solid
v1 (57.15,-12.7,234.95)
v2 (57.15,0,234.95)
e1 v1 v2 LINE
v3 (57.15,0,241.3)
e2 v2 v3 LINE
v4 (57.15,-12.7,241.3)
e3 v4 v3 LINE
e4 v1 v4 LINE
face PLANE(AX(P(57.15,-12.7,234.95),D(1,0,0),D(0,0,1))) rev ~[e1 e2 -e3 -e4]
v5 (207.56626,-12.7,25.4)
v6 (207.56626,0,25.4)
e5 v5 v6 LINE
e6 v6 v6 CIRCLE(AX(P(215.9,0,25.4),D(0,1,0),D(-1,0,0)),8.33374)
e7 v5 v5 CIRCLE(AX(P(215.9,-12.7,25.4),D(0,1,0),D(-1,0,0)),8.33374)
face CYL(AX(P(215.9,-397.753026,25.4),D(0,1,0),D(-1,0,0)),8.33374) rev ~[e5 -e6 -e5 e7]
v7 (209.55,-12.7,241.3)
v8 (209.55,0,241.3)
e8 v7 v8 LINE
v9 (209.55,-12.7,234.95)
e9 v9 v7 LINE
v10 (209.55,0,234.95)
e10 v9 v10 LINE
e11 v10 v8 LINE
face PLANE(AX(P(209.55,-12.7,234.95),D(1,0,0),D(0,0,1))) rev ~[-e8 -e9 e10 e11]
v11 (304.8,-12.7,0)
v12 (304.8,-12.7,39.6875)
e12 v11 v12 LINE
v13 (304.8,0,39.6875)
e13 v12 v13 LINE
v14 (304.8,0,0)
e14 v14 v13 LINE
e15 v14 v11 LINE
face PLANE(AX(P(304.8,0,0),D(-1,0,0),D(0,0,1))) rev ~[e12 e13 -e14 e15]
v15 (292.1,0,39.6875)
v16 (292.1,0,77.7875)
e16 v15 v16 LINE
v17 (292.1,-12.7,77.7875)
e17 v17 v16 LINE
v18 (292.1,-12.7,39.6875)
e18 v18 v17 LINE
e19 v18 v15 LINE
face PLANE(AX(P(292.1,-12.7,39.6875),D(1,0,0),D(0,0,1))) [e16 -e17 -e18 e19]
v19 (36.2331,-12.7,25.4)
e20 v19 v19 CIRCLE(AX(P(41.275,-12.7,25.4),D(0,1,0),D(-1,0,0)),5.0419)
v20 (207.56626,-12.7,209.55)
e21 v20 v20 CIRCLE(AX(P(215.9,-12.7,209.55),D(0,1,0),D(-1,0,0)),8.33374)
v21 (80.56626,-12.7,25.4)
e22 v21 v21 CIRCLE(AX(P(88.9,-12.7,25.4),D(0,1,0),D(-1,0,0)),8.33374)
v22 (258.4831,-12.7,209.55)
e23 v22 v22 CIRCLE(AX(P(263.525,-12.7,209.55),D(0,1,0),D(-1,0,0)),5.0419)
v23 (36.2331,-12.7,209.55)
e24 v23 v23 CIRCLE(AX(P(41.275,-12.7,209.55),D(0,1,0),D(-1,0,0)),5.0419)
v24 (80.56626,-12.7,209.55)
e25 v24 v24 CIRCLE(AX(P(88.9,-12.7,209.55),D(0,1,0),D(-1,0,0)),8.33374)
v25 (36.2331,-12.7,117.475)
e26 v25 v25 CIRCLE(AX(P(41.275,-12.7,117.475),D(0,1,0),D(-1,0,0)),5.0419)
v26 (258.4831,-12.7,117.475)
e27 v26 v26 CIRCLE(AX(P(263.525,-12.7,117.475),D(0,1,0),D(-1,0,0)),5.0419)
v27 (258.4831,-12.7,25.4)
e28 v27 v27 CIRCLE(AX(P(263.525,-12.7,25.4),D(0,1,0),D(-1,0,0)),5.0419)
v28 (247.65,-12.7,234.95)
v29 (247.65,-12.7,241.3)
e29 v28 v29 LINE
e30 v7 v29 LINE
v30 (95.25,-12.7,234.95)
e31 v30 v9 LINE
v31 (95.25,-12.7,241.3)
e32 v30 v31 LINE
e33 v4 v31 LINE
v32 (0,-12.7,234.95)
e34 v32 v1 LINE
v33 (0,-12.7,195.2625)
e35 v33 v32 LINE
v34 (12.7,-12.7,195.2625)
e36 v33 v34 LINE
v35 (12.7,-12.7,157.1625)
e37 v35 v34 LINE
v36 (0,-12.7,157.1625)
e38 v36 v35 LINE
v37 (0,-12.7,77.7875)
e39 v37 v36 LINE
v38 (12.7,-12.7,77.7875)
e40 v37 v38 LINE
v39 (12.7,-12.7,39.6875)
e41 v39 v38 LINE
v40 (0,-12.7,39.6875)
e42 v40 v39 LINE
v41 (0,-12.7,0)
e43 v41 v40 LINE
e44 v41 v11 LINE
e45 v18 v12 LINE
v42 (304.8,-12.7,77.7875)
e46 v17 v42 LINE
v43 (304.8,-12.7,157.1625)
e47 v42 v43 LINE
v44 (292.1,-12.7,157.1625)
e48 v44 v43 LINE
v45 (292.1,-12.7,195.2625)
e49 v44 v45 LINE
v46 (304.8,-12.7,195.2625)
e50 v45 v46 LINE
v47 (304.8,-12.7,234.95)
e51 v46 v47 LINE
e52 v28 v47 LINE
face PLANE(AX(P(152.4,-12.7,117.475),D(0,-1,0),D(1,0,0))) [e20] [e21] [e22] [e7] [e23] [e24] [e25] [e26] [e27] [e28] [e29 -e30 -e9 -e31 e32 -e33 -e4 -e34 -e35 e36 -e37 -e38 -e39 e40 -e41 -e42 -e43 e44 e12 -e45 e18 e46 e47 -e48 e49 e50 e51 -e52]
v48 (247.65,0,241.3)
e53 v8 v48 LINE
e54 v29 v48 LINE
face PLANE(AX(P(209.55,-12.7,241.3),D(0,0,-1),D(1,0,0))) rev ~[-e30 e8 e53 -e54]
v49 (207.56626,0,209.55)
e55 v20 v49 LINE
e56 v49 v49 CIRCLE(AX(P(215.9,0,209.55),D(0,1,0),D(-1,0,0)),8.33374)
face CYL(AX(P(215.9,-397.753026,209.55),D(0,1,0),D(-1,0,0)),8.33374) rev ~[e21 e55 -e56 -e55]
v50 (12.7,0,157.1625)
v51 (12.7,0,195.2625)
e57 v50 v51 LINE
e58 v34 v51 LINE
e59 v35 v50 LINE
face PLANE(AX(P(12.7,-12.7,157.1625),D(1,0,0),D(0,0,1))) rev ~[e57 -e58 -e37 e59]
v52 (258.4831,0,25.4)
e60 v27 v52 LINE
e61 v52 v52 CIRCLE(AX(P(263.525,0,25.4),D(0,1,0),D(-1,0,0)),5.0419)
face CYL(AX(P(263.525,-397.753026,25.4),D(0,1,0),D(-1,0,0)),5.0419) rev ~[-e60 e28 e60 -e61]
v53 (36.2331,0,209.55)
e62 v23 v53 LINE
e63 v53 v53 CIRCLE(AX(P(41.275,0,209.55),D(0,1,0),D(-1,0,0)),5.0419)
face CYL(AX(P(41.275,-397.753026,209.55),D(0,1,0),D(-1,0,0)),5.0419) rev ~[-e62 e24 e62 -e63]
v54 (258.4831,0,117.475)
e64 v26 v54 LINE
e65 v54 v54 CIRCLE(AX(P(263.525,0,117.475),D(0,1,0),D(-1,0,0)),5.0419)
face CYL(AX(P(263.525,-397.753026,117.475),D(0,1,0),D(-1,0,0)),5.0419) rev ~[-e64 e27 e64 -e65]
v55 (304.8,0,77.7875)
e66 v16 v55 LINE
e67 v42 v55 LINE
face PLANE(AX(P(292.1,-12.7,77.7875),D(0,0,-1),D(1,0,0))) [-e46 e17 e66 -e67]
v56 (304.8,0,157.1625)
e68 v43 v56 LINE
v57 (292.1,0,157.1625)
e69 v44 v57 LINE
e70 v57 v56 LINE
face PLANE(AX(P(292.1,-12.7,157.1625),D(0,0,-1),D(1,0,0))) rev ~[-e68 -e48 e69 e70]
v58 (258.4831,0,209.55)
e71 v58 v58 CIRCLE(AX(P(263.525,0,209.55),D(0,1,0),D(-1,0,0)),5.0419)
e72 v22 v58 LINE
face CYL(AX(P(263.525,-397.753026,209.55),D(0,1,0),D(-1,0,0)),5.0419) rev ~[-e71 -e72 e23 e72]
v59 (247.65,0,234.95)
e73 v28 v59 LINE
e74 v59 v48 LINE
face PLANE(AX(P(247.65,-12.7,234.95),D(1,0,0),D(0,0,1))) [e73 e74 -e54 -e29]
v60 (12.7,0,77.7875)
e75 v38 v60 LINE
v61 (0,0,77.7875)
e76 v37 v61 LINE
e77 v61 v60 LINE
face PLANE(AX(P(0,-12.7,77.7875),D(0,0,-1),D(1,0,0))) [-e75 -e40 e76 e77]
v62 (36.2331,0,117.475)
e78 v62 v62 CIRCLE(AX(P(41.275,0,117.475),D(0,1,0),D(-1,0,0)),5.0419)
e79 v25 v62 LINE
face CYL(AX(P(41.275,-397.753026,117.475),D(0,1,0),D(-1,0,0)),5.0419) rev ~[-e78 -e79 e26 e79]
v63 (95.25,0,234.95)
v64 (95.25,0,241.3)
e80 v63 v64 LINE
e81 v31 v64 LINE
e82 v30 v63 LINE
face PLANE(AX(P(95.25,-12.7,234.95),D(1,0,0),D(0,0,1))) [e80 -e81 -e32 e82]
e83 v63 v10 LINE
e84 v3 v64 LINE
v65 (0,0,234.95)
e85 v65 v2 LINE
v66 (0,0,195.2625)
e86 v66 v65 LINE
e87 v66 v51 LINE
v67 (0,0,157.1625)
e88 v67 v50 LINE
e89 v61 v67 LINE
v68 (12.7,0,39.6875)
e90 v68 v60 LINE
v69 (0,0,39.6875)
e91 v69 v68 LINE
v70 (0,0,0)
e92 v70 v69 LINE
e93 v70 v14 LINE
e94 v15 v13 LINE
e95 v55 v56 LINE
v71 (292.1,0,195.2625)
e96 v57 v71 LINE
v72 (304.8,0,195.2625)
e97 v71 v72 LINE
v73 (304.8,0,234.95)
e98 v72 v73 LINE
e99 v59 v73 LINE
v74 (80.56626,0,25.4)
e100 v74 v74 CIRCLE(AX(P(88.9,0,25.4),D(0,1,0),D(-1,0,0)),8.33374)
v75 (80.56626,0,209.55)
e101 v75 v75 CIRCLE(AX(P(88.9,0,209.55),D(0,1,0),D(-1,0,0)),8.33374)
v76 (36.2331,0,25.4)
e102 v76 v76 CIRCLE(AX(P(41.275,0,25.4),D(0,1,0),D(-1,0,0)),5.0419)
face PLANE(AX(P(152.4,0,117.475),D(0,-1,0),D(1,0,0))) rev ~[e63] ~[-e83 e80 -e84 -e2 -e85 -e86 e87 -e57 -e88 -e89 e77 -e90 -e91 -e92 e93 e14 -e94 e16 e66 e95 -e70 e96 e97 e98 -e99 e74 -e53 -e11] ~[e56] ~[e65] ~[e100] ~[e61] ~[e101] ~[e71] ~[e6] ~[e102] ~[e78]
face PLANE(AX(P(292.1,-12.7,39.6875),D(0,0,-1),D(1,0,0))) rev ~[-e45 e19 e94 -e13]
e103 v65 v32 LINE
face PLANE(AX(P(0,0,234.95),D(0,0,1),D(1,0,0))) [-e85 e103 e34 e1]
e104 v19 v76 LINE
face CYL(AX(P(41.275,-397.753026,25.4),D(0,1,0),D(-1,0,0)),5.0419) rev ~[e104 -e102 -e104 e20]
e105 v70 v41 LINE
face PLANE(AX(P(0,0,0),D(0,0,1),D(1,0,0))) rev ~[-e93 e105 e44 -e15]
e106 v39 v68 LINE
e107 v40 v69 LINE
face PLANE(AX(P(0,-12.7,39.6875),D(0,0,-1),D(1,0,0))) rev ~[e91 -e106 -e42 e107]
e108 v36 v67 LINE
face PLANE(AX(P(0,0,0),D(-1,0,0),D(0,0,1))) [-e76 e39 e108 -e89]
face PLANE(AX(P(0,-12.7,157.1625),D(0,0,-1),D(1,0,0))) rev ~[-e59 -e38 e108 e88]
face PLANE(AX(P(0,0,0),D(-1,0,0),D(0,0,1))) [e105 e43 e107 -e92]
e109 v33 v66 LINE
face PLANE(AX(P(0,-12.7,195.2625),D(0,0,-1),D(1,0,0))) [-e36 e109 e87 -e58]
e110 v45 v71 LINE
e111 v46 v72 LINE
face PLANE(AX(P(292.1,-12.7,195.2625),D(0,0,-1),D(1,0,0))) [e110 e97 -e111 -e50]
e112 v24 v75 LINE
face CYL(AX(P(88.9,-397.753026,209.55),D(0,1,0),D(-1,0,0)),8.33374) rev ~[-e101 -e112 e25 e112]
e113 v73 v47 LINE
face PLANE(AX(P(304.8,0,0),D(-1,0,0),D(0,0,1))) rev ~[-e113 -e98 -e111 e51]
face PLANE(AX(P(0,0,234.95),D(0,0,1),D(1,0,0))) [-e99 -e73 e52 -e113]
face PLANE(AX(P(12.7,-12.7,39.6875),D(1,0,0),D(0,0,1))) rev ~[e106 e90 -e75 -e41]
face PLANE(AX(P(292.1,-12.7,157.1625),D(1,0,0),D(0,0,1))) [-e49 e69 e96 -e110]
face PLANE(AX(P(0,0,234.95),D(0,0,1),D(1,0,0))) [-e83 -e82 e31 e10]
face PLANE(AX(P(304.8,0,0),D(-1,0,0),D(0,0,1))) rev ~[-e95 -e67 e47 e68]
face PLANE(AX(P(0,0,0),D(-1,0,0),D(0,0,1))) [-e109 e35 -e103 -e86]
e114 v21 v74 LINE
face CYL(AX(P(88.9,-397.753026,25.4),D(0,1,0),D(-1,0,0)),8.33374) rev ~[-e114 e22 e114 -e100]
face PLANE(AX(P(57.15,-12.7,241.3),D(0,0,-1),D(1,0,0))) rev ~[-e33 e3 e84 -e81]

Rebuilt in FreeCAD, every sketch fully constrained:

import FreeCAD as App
import Part
import Sketcher
from FreeCAD import Vector
Q = App.Units.Quantity


def add_polygon(sketch, points):
    """Adds a closed chain of lines whose ends are joined by coincident constraints."""
    first, n = sketch.GeometryCount, len(points)
    for a, b in zip(points, points[1:] + points[:1]):
        sketch.addGeometry(Part.LineSegment(App.Vector(*a, 0), App.Vector(*b, 0)), False)
    for i in range(n):
        sketch.addConstraint(Sketcher.Constraint("Coincident", first + i, 2, first + (i + 1) % n, 1))

doc = App.newDocument("Part")
params = doc.addObject("Spreadsheet::Sheet", "Params")
for row, (alias, value) in enumerate([
    ("sketch1_width", "12 in"),
    ("sketch1_height", "9.25 in"),
    ("pad1_length", "0.5 in"),
    ("hole_diameter", "0.6562 in"),
    ("sketch3_diameter", "0.397 in"),
    ("hole2_diameter", "0.397 in"),
    ("sketch4_width", "0.5 in"),
    ("sketch4_height", "1.5 in"),
    ("pocket1_length", "1 in"),
    ("sketch5_width", "1.5 in"),
    ("sketch5_height", "0.25 in"),
    ("pad2_length", "0.5 in"),
], start=1):
    params.set(f"A{row}", alias)
    params.set(f"B{row}", "=" + value)
    params.setAlias(f"B{row}", alias)

body = doc.addObject("PartDesign::Body", "Body")

sketch1 = body.newObject("Sketcher::SketchObject", "Sketch")
sketch1.AttachmentSupport = (doc.getObject("XZ_Plane"), [""])
sketch1.MapMode = "FlatFace"
add_polygon(sketch1, [(0, 235), (0, 0), (305, 0), (305, 235)])
sketch1.addConstraint([
    Sketcher.Constraint("Vertical", 0),
    Sketcher.Constraint("Horizontal", 1),
    Sketcher.Constraint("Vertical", 2),
    Sketcher.Constraint("Horizontal", 3),
    Sketcher.Constraint("Coincident", 0, 2, -1, 1),
    Sketcher.Constraint("DistanceX", 1, 1, 1, 2, Q("12 in")),
    Sketcher.Constraint("DistanceY", 0, 2, 0, 1, Q("9.25 in")),
])
sketch1.setExpression("Constraints[9]", "Params.sketch1_width")
sketch1.setExpression("Constraints[10]", "Params.sketch1_height")
pad1 = body.newObject("PartDesign::Pad", "Pad")
pad1.Profile = sketch1
pad1.setExpression("Length", "Params.pad1_length")

sketch2 = body.newObject("Sketcher::SketchObject", "Sketch001")
sketch2.AttachmentSupport = (doc.getObject("XZ_Plane"), [""])
sketch2.MapMode = "FlatFace"
sketch2.AttachmentOffset = App.Placement(Vector(0, 0, 0.5 * 25.4), App.Rotation())
sketch2.addGeometry([
    Part.Circle(Vector(216, 25, 0), Vector(0, 0, 1), 8),
    Part.Circle(Vector(89, 25, 0), Vector(0, 0, 1), 8),
    Part.Circle(Vector(89, 210, 0), Vector(0, 0, 1), 8),
    Part.Circle(Vector(216, 210, 0), Vector(0, 0, 1), 8),
], False)
sketch2.addConstraint([
    Sketcher.Constraint("Equal", 0, 1),
    Sketcher.Constraint("Equal", 1, 2),
    Sketcher.Constraint("Equal", 2, 3),
    Sketcher.Constraint("Horizontal", 0, 3, 1, 3),
    Sketcher.Constraint("Horizontal", 2, 3, 3, 3),
    Sketcher.Constraint("Vertical", 1, 3, 2, 3),
    Sketcher.Constraint("Vertical", 0, 3, 3, 3),
    Sketcher.Constraint("DistanceY", -1, 1, 0, 3, Q("1 in")),
    Sketcher.Constraint("DistanceX", 1, 3, 0, 3, Q("5 in")),
    Sketcher.Constraint("Diameter", 0, Q("0.6562 in")),
    Sketcher.Constraint("DistanceX", -1, 1, 0, 3, Q("8.5 in")),
    Sketcher.Constraint("DistanceY", -1, 1, 2, 3, Q("8.25 in")),
])
doc.recompute()
hole = body.newObject("PartDesign::Hole", "Hole")
hole.Profile = sketch2
hole.ThreadType = "None"
hole.setExpression("Diameter", "Params.hole_diameter")
hole.DepthType = "ThroughAll"

sketch3 = body.newObject("Sketcher::SketchObject", "Sketch002")
sketch3.AttachmentSupport = (doc.getObject("XZ_Plane"), [""])
sketch3.MapMode = "FlatFace"
sketch3.AttachmentOffset = App.Placement(Vector(0, 0, 0.5 * 25.4), App.Rotation())
sketch3.addGeometry([
    Part.Circle(Vector(264, 25, 0), Vector(0, 0, 1), 5),
    Part.Circle(Vector(264, 210, 0), Vector(0, 0, 1), 5),
    Part.Circle(Vector(41, 210, 0), Vector(0, 0, 1), 5),
    Part.Circle(Vector(41, 25, 0), Vector(0, 0, 1), 5),
    Part.Circle(Vector(41, 117, 0), Vector(0, 0, 1), 5),
    Part.Circle(Vector(264, 117, 0), Vector(0, 0, 1), 5),
], False)
sketch3.addConstraint([
    Sketcher.Constraint("Equal", 0, 1),
    Sketcher.Constraint("Equal", 1, 2),
    Sketcher.Constraint("Equal", 2, 3),
    Sketcher.Constraint("Equal", 3, 4),
    Sketcher.Constraint("Equal", 4, 5),
    Sketcher.Constraint("Horizontal", 1, 3, 2, 3),
    Sketcher.Constraint("Horizontal", 0, 3, 3, 3),
    Sketcher.Constraint("Horizontal", 4, 3, 5, 3),
    Sketcher.Constraint("Vertical", 0, 3, 1, 3),
    Sketcher.Constraint("Vertical", 2, 3, 3, 3),
    Sketcher.Constraint("Vertical", 3, 3, 4, 3),
    Sketcher.Constraint("Vertical", 1, 3, 5, 3),
    Sketcher.Constraint("Diameter", 0, Q("0.397 in")),
    Sketcher.Constraint("DistanceY", -1, 1, 0, 3, Q("1 in")),
    Sketcher.Constraint("DistanceY", -1, 1, 1, 3, Q("8.25 in")),
    Sketcher.Constraint("DistanceX", 2, 3, 1, 3, Q("8.75 in")),
    Sketcher.Constraint("DistanceX", -1, 1, 0, 3, Q("10.375 in")),
    Sketcher.Constraint("DistanceY", -1, 1, 4, 3, Q("4.625 in")),
])
sketch3.setExpression("Constraints[12]", "Params.sketch3_diameter")
doc.recompute()
hole2 = body.newObject("PartDesign::Hole", "Hole001")
hole2.Profile = sketch3
hole2.ThreadType = "None"
hole2.setExpression("Diameter", "Params.hole2_diameter")
hole2.DepthType = "ThroughAll"

sketch4 = body.newObject("Sketcher::SketchObject", "Sketch003")
sketch4.AttachmentSupport = (doc.getObject("XZ_Plane"), [""])
sketch4.MapMode = "FlatFace"
sketch4.AttachmentOffset = App.Placement(Vector(0, 0, 0.5 * 25.4), App.Rotation())
add_polygon(sketch4, [(292, 78), (292, 40), (305, 40), (305, 78)])
add_polygon(sketch4, [(0, 78), (0, 40), (13, 40), (13, 78)])
add_polygon(sketch4, [(0, 195), (0, 157), (13, 157), (13, 195)])
add_polygon(sketch4, [(292, 195), (292, 157), (305, 157), (305, 195)])
sketch4.addConstraint([
    Sketcher.Constraint("Vertical", 0),
    Sketcher.Constraint("Horizontal", 1),
    Sketcher.Constraint("Vertical", 2),
    Sketcher.Constraint("Horizontal", 3),
    Sketcher.Constraint("Vertical", 4),
    Sketcher.Constraint("Horizontal", 5),
    Sketcher.Constraint("Vertical", 6),
    Sketcher.Constraint("Horizontal", 7),
    Sketcher.Constraint("Vertical", 8),
    Sketcher.Constraint("Horizontal", 9),
    Sketcher.Constraint("Vertical", 10),
    Sketcher.Constraint("Horizontal", 11),
    Sketcher.Constraint("Vertical", 12),
    Sketcher.Constraint("Horizontal", 13),
    Sketcher.Constraint("Vertical", 14),
    Sketcher.Constraint("Horizontal", 15),
    Sketcher.Constraint("PointOnObject", 4, 2, -2),
    Sketcher.Constraint("PointOnObject", 8, 2, -2),
    Sketcher.Constraint("Horizontal", 1, 2, 4, 2),
    Sketcher.Constraint("Horizontal", 3, 2, 6, 2),
    Sketcher.Constraint("Horizontal", 9, 2, 12, 2),
    Sketcher.Constraint("Horizontal", 11, 2, 14, 2),
    Sketcher.Constraint("Vertical", 6, 2, 9, 2),
    Sketcher.Constraint("Vertical", 3, 2, 12, 2),
    Sketcher.Constraint("Vertical", 2, 2, 13, 2),
    Sketcher.Constraint("Equal", 3, 5),
    Sketcher.Constraint("Equal", 6, 8),
    Sketcher.Constraint("DistanceX", 1, 1, 1, 2, Q("0.5 in")),
    Sketcher.Constraint("DistanceY", 0, 2, 0, 1, Q("1.5 in")),
    Sketcher.Constraint("DistanceX", -1, 1, 1, 2, Q("12 in")),
    Sketcher.Constraint("DistanceY", -1, 1, 0, 2, Q("1.5625 in")),
    Sketcher.Constraint("DistanceY", -1, 1, 8, 2, Q("6.1875 in")),
])
sketch4.setExpression("Constraints[43]", "Params.sketch4_width")
sketch4.setExpression("Constraints[44]", "Params.sketch4_height")
pocket1 = body.newObject("PartDesign::Pocket", "Pocket")
pocket1.Profile = sketch4
pocket1.setExpression("Length", "Params.pocket1_length")

sketch5 = body.newObject("Sketcher::SketchObject", "Sketch004")
sketch5.AttachmentSupport = (doc.getObject("XZ_Plane"), [""])
sketch5.MapMode = "FlatFace"
sketch5.AttachmentOffset = App.Placement(Vector(0, 0, 0.5 * 25.4), App.Rotation())
add_polygon(sketch5, [(57, 241), (57, 235), (95, 235), (95, 241)])
add_polygon(sketch5, [(210, 241), (210, 235), (248, 235), (248, 241)])
sketch5.addConstraint([
    Sketcher.Constraint("Vertical", 0),
    Sketcher.Constraint("Horizontal", 1),
    Sketcher.Constraint("Vertical", 2),
    Sketcher.Constraint("Horizontal", 3),
    Sketcher.Constraint("Vertical", 4),
    Sketcher.Constraint("Horizontal", 5),
    Sketcher.Constraint("Vertical", 6),
    Sketcher.Constraint("Horizontal", 7),
    Sketcher.Constraint("Horizontal", 1, 2, 4, 2),
    Sketcher.Constraint("Horizontal", 3, 2, 6, 2),
    Sketcher.Constraint("Equal", 3, 5),
    Sketcher.Constraint("DistanceX", 1, 1, 1, 2, Q("1.5 in")),
    Sketcher.Constraint("DistanceX", 0, 2, 4, 2, Q("6 in")),
    Sketcher.Constraint("DistanceY", 0, 2, 0, 1, Q("0.25 in")),
    Sketcher.Constraint("DistanceY", -1, 1, 2, 2, Q("9.5 in")),
    Sketcher.Constraint("DistanceX", -1, 1, 0, 2, Q("2.25 in")),
])
sketch5.setExpression("Constraints[19]", "Params.sketch5_width")
sketch5.setExpression("Constraints[21]", "Params.sketch5_height")
pad2 = body.newObject("PartDesign::Pad", "Pad001")
pad2.Profile = sketch5
pad2.setExpression("Length", "Params.pad2_length")
pad2.Reversed = True

doc.recompute()
